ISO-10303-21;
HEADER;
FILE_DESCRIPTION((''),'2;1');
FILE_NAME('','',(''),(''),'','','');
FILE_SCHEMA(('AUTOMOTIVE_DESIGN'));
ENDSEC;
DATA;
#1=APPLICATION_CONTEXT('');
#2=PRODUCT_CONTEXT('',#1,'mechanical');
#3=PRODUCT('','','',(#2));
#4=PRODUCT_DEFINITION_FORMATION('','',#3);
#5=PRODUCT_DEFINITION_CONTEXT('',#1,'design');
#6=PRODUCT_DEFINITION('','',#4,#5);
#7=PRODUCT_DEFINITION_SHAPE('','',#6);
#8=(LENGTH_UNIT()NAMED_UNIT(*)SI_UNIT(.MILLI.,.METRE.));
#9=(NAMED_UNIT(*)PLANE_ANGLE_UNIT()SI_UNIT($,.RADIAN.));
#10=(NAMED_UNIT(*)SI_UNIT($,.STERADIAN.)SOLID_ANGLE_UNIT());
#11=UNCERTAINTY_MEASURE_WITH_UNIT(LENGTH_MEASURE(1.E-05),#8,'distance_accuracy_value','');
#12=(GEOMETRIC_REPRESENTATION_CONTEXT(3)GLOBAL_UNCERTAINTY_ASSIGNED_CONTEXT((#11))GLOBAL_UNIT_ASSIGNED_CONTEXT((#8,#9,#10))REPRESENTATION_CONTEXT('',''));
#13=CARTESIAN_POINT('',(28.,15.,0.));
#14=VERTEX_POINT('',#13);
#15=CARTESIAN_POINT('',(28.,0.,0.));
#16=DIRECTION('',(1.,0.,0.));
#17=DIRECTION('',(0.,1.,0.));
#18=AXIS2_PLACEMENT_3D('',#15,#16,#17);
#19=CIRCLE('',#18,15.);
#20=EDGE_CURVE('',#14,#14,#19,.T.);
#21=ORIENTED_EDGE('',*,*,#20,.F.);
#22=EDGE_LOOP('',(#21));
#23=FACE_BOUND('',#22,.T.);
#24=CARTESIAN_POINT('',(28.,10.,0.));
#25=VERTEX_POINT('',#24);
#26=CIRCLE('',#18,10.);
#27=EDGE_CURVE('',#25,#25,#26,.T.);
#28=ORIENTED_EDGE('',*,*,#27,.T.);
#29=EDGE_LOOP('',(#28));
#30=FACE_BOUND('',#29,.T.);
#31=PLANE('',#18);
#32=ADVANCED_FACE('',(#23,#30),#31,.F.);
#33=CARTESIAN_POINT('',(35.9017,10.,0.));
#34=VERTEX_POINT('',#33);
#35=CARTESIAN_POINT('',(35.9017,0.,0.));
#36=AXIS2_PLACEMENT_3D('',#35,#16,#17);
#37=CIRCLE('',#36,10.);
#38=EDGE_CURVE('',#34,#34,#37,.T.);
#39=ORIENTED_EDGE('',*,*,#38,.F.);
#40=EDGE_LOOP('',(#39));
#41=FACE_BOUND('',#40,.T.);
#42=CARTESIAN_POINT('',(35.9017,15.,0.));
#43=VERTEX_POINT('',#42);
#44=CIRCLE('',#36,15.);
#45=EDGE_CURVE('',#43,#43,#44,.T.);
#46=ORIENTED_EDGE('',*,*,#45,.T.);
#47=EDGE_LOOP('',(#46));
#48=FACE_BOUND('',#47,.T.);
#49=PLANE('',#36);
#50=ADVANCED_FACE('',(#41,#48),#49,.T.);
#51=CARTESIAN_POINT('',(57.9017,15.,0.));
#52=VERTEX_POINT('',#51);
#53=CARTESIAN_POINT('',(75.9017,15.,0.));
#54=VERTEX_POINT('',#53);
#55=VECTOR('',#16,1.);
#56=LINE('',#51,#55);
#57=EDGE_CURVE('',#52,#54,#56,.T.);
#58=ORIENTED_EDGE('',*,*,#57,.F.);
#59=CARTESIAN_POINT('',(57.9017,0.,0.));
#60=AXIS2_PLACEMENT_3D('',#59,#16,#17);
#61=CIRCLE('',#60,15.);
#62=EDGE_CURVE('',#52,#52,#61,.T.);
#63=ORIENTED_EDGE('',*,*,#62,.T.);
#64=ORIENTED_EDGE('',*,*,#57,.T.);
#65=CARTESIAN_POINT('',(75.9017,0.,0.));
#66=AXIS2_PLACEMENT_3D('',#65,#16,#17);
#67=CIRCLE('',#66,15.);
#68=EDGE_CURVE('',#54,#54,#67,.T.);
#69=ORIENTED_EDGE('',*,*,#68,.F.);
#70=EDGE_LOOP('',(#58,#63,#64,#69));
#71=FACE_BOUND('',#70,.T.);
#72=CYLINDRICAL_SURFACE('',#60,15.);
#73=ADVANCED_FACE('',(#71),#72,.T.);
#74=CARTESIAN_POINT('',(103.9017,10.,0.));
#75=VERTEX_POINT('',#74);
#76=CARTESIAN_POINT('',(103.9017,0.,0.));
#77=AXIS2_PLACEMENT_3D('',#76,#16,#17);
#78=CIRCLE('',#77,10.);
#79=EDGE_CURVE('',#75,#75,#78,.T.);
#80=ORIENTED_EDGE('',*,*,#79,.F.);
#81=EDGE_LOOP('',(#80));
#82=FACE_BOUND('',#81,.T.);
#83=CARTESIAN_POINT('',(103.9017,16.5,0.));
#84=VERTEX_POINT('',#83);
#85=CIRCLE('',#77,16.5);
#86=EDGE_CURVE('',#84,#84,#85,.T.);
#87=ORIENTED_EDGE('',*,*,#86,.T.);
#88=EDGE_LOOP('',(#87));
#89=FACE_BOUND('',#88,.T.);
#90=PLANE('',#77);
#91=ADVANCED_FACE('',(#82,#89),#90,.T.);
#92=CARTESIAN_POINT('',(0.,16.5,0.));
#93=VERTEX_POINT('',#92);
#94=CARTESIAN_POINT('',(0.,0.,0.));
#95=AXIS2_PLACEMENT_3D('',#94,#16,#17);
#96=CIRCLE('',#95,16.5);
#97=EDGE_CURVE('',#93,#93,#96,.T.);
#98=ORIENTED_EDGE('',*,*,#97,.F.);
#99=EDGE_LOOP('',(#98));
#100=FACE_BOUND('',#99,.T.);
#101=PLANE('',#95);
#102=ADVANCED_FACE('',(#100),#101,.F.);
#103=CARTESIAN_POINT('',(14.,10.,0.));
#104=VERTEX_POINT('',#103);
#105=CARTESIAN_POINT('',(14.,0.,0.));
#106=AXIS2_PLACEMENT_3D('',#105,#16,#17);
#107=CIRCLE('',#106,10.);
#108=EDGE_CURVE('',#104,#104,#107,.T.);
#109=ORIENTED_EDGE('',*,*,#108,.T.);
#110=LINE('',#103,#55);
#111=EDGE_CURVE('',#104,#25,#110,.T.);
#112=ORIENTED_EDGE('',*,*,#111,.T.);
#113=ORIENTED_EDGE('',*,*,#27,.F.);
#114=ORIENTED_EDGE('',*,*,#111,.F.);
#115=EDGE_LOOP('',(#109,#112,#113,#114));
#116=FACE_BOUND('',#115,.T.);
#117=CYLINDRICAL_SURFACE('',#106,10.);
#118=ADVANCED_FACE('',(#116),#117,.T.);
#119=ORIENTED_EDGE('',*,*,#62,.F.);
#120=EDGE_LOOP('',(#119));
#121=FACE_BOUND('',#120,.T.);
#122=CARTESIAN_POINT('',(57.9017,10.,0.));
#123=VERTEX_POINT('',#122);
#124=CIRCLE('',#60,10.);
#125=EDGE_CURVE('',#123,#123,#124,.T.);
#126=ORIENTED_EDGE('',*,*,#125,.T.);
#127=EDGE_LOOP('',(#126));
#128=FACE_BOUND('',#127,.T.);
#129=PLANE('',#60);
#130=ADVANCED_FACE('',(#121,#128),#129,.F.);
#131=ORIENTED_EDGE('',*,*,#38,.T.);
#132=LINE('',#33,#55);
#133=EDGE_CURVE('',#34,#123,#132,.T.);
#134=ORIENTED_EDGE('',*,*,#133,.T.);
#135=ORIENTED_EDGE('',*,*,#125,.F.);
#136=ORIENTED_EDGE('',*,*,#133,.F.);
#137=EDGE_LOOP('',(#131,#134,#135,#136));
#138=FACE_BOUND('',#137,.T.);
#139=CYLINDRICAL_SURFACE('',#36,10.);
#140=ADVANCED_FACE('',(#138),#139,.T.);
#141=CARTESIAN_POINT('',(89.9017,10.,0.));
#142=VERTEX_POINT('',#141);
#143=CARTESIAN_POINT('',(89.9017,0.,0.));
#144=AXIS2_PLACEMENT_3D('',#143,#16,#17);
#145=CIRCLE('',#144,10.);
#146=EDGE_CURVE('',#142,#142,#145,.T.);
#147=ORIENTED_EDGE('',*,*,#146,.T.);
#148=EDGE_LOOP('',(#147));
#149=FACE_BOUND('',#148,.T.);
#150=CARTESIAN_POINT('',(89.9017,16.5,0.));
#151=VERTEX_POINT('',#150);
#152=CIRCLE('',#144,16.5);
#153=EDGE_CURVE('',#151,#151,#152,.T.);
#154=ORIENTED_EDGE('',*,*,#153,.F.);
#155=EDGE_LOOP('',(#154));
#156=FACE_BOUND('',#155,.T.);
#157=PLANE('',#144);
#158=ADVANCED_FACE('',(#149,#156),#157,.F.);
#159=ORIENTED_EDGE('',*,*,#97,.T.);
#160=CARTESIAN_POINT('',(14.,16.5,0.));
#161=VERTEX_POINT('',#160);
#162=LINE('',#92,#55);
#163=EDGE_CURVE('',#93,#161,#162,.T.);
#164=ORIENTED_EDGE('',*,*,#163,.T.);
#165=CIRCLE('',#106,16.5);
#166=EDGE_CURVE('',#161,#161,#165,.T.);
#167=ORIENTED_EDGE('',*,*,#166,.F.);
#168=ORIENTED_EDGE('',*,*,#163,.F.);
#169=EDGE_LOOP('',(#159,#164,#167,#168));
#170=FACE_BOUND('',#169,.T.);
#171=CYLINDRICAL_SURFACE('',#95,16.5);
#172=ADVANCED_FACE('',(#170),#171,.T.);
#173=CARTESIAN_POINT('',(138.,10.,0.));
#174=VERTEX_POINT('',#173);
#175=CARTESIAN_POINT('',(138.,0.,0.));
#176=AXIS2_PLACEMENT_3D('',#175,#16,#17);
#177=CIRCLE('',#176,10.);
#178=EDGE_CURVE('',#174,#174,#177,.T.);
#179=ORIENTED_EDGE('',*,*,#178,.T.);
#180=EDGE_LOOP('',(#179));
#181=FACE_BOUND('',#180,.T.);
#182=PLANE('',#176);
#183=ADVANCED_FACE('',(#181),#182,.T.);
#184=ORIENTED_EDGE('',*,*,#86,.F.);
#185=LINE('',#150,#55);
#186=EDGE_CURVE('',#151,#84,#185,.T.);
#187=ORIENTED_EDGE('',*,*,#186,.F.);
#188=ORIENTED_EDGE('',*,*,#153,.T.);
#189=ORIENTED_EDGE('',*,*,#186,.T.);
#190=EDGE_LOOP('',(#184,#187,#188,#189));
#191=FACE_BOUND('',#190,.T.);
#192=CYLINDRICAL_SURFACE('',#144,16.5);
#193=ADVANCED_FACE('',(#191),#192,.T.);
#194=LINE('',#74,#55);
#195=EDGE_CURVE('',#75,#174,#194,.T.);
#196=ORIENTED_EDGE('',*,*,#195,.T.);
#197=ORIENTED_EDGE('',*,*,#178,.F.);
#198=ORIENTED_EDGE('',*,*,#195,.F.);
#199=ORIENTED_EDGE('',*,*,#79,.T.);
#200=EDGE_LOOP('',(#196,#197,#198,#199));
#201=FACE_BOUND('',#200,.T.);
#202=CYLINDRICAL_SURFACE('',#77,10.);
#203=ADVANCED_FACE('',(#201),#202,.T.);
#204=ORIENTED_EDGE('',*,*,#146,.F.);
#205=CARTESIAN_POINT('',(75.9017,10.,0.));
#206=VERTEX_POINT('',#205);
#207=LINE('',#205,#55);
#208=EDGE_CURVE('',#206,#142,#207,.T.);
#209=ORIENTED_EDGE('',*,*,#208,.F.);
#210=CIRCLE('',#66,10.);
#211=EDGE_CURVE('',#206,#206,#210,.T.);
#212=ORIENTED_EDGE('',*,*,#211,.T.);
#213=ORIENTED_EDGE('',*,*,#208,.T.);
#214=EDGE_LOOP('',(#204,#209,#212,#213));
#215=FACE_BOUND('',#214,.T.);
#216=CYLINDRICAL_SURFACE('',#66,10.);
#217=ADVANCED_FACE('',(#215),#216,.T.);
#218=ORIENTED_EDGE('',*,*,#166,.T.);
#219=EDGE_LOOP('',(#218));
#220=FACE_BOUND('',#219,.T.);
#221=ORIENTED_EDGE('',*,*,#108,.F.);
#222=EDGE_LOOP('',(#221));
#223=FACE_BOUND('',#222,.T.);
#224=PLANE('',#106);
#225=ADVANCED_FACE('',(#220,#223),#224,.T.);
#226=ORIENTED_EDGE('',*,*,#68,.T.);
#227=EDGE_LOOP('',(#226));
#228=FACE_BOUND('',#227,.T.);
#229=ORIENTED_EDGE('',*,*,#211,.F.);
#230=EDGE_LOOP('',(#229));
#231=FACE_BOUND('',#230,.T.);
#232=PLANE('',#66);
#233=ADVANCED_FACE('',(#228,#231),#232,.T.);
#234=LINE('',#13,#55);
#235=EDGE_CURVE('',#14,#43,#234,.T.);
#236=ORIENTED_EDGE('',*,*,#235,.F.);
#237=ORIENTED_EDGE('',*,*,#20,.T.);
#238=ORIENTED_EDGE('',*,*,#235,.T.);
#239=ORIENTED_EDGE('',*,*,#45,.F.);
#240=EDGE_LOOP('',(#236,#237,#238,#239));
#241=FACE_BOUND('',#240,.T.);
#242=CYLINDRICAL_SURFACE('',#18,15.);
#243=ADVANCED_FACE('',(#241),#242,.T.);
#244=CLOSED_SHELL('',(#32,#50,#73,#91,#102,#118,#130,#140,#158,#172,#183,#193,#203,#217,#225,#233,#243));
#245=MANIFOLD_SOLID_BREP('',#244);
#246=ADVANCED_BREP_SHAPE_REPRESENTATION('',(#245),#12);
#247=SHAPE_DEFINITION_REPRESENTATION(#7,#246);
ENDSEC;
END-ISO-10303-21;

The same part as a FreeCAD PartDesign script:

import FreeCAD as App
import Part
import Sketcher
from FreeCAD import Vector


def add_polygon(sketch, points):
    """Adds a closed chain of lines whose ends are joined by coincident constraints."""
    first, n = sketch.GeometryCount, len(points)
    for a, b in zip(points, points[1:] + points[:1]):
        sketch.addGeometry(Part.LineSegment(App.Vector(*a, 0), App.Vector(*b, 0)), False)
    for i in range(n):
        sketch.addConstraint(Sketcher.Constraint("Coincident", first + i, 2, first + (i + 1) % n, 1))

doc = App.newDocument("Part")
body = doc.addObject("PartDesign::Body", "Body")

# Sketch on XY plane
sketch1 = body.newObject("Sketcher::SketchObject", "Sketch")
sketch1.AttachmentSupport = (doc.getObject("XY_Plane"), [""])
sketch1.MapMode = "FlatFace"
add_polygon(sketch1, [(0, 16), (0, 0), (138, 0), (138, 10), (104, 10), (104, 16), (90, 16), (90, 10), (76, 10), (76, 15), (58, 15), (58, 10), (36, 10), (36, 15), (28, 15), (28, 10), (14, 10), (14, 16)])  # lines 0-17
sketch1.addConstraint(Sketcher.Constraint("Vertical", 0))
sketch1.addConstraint(Sketcher.Constraint("Horizontal", 1))
sketch1.addConstraint(Sketcher.Constraint("Vertical", 2))
sketch1.addConstraint(Sketcher.Constraint("Horizontal", 3))
sketch1.addConstraint(Sketcher.Constraint("Vertical", 4))
sketch1.addConstraint(Sketcher.Constraint("Horizontal", 5))
sketch1.addConstraint(Sketcher.Constraint("Vertical", 6))
sketch1.addConstraint(Sketcher.Constraint("Horizontal", 7))
sketch1.addConstraint(Sketcher.Constraint("Vertical", 8))
sketch1.addConstraint(Sketcher.Constraint("Horizontal", 9))
sketch1.addConstraint(Sketcher.Constraint("Vertical", 10))
sketch1.addConstraint(Sketcher.Constraint("Horizontal", 11))
sketch1.addConstraint(Sketcher.Constraint("Vertical", 12))
sketch1.addConstraint(Sketcher.Constraint("Horizontal", 13))
sketch1.addConstraint(Sketcher.Constraint("Vertical", 14))
sketch1.addConstraint(Sketcher.Constraint("Horizontal", 15))
sketch1.addConstraint(Sketcher.Constraint("Vertical", 16))
sketch1.addConstraint(Sketcher.Constraint("Horizontal", 17))
sketch1.addConstraint(Sketcher.Constraint("Coincident", 0, 2, -1, 1))
sketch1.addConstraint(Sketcher.Constraint("Horizontal", 3, 2, 6, 2))
sketch1.addConstraint(Sketcher.Constraint("Horizontal", 7, 2, 10, 2))
sketch1.addConstraint(Sketcher.Constraint("Horizontal", 9, 2, 12, 2))
sketch1.addConstraint(Sketcher.Constraint("Horizontal", 11, 2, 14, 2))
sketch1.addConstraint(Sketcher.Constraint("Horizontal", 5, 2, 16, 2))
sketch1.addConstraint(Sketcher.Constraint("Equal", 5, 7))
sketch1.addConstraint(Sketcher.Constraint("Equal", 7, 15))
sketch1.addConstraint(Sketcher.Constraint("Equal", 15, 17))
sketch1.addConstraint(Sketcher.Constraint("DistanceX", 1, 1, 1, 2, 138.0))
sketch1.addConstraint(Sketcher.Constraint("DistanceX", 5, 2, 5, 1, 14.0))
sketch1.addConstraint(Sketcher.Constraint("DistanceX", 9, 2, 9, 1, 18.0))
sketch1.addConstraint(Sketcher.Constraint("DistanceX", 11, 2, 11, 1, 22.0))
sketch1.addConstraint(Sketcher.Constraint("DistanceY", 2, 1, 2, 2, 10.0))
sketch1.addConstraint(Sketcher.Constraint("DistanceY", 8, 1, 8, 2, 5.0))
sketch1.addConstraint(Sketcher.Constraint("DistanceX", 13, 2, 13, 1, 7.9017))
sketch1.addConstraint(Sketcher.Constraint("DistanceY", 0, 2, 0, 1, 16.5))
revolution = body.newObject("PartDesign::Revolution", "Revolution")
revolution.Profile = sketch1
revolution.ReferenceAxis = (sketch1, ["H_Axis"])
revolution.Angle = 360

doc.recompute()
